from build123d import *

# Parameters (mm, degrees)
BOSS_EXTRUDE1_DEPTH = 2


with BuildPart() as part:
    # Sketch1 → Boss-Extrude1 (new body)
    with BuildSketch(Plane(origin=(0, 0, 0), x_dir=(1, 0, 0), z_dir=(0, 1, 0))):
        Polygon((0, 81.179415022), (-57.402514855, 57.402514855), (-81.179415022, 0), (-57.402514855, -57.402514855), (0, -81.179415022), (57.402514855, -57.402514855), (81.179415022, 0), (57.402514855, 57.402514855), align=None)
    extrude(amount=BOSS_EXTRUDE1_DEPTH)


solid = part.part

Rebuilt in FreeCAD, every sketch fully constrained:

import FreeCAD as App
import Part
import Sketcher
from FreeCAD import Vector
Q = App.Units.Quantity

doc = App.newDocument("Part")
body = doc.addObject("PartDesign::Body", "Body")

# Sketch on XZ plane
sketch1 = doc.addObject("Sketcher::SketchObject", "Sketch")
body.addObject(sketch1)
sketch1.AttachmentSupport = (doc.XZ_Plane, [""])
sketch1.MapMode = "FlatFace"
sketch1.addGeometry([
    Part.LineSegment(Vector(0, -81, 0), Vector(-57, -57, 0)),  # 0
    Part.LineSegment(Vector(-57, -57, 0), Vector(-81, 0, 0)),  # 1
    Part.LineSegment(Vector(-81, 0, 0), Vector(-57, 57, 0)),  # 2
    Part.LineSegment(Vector(-57, 57, 0), Vector(0, 81, 0)),  # 3
    Part.LineSegment(Vector(0, 81, 0), Vector(57, 57, 0)),  # 4
    Part.LineSegment(Vector(57, 57, 0), Vector(81, 0, 0)),  # 5
    Part.LineSegment(Vector(81, 0, 0), Vector(57, -57, 0)),  # 6
    Part.LineSegment(Vector(57, -57, 0), Vector(0, -81, 0)),  # 7
], False)
sketch1.addConstraint([
    Sketcher.Constraint("Coincident", 0, 2, 1, 1),
    Sketcher.Constraint("Coincident", 1, 2, 2, 1),
    Sketcher.Constraint("Coincident", 2, 2, 3, 1),
    Sketcher.Constraint("Coincident", 3, 2, 4, 1),
    Sketcher.Constraint("Coincident", 4, 2, 5, 1),
    Sketcher.Constraint("Coincident", 5, 2, 6, 1),
    Sketcher.Constraint("Coincident", 6, 2, 7, 1),
    Sketcher.Constraint("Coincident", 7, 2, 0, 1),
    Sketcher.Constraint("Symmetric", 0, 2, 4, 2, -1, 1),
    Sketcher.Constraint("Symmetric", 1, 2, 5, 2, -1, 1),
    Sketcher.Constraint("Symmetric", 2, 2, 6, 2, -1, 1),
    Sketcher.Constraint("Symmetric", 3, 2, 7, 2, -1, 1),
    Sketcher.Constraint("Symmetric", 2, 2, 4, 2, -2),
    Sketcher.Constraint("PointOnObject", 1, 2, -1),
    Sketcher.Constraint("PointOnObject", 3, 2, -2),
    Sketcher.Constraint("Perpendicular", 0, 2),
    Sketcher.Constraint("Equal", 0, 1),
    Sketcher.Constraint("Angle", 0, Q("157.5 deg")),
    Sketcher.Constraint("DistanceX", 1, 2, 0, 2, Q("23.7769 mm")),
])
pad1 = doc.addObject("PartDesign::Pad", "Pad")
body.addObject(pad1)
pad1.Profile = sketch1
pad1.Length = 2
pad1.Reversed = True

doc.recompute()
